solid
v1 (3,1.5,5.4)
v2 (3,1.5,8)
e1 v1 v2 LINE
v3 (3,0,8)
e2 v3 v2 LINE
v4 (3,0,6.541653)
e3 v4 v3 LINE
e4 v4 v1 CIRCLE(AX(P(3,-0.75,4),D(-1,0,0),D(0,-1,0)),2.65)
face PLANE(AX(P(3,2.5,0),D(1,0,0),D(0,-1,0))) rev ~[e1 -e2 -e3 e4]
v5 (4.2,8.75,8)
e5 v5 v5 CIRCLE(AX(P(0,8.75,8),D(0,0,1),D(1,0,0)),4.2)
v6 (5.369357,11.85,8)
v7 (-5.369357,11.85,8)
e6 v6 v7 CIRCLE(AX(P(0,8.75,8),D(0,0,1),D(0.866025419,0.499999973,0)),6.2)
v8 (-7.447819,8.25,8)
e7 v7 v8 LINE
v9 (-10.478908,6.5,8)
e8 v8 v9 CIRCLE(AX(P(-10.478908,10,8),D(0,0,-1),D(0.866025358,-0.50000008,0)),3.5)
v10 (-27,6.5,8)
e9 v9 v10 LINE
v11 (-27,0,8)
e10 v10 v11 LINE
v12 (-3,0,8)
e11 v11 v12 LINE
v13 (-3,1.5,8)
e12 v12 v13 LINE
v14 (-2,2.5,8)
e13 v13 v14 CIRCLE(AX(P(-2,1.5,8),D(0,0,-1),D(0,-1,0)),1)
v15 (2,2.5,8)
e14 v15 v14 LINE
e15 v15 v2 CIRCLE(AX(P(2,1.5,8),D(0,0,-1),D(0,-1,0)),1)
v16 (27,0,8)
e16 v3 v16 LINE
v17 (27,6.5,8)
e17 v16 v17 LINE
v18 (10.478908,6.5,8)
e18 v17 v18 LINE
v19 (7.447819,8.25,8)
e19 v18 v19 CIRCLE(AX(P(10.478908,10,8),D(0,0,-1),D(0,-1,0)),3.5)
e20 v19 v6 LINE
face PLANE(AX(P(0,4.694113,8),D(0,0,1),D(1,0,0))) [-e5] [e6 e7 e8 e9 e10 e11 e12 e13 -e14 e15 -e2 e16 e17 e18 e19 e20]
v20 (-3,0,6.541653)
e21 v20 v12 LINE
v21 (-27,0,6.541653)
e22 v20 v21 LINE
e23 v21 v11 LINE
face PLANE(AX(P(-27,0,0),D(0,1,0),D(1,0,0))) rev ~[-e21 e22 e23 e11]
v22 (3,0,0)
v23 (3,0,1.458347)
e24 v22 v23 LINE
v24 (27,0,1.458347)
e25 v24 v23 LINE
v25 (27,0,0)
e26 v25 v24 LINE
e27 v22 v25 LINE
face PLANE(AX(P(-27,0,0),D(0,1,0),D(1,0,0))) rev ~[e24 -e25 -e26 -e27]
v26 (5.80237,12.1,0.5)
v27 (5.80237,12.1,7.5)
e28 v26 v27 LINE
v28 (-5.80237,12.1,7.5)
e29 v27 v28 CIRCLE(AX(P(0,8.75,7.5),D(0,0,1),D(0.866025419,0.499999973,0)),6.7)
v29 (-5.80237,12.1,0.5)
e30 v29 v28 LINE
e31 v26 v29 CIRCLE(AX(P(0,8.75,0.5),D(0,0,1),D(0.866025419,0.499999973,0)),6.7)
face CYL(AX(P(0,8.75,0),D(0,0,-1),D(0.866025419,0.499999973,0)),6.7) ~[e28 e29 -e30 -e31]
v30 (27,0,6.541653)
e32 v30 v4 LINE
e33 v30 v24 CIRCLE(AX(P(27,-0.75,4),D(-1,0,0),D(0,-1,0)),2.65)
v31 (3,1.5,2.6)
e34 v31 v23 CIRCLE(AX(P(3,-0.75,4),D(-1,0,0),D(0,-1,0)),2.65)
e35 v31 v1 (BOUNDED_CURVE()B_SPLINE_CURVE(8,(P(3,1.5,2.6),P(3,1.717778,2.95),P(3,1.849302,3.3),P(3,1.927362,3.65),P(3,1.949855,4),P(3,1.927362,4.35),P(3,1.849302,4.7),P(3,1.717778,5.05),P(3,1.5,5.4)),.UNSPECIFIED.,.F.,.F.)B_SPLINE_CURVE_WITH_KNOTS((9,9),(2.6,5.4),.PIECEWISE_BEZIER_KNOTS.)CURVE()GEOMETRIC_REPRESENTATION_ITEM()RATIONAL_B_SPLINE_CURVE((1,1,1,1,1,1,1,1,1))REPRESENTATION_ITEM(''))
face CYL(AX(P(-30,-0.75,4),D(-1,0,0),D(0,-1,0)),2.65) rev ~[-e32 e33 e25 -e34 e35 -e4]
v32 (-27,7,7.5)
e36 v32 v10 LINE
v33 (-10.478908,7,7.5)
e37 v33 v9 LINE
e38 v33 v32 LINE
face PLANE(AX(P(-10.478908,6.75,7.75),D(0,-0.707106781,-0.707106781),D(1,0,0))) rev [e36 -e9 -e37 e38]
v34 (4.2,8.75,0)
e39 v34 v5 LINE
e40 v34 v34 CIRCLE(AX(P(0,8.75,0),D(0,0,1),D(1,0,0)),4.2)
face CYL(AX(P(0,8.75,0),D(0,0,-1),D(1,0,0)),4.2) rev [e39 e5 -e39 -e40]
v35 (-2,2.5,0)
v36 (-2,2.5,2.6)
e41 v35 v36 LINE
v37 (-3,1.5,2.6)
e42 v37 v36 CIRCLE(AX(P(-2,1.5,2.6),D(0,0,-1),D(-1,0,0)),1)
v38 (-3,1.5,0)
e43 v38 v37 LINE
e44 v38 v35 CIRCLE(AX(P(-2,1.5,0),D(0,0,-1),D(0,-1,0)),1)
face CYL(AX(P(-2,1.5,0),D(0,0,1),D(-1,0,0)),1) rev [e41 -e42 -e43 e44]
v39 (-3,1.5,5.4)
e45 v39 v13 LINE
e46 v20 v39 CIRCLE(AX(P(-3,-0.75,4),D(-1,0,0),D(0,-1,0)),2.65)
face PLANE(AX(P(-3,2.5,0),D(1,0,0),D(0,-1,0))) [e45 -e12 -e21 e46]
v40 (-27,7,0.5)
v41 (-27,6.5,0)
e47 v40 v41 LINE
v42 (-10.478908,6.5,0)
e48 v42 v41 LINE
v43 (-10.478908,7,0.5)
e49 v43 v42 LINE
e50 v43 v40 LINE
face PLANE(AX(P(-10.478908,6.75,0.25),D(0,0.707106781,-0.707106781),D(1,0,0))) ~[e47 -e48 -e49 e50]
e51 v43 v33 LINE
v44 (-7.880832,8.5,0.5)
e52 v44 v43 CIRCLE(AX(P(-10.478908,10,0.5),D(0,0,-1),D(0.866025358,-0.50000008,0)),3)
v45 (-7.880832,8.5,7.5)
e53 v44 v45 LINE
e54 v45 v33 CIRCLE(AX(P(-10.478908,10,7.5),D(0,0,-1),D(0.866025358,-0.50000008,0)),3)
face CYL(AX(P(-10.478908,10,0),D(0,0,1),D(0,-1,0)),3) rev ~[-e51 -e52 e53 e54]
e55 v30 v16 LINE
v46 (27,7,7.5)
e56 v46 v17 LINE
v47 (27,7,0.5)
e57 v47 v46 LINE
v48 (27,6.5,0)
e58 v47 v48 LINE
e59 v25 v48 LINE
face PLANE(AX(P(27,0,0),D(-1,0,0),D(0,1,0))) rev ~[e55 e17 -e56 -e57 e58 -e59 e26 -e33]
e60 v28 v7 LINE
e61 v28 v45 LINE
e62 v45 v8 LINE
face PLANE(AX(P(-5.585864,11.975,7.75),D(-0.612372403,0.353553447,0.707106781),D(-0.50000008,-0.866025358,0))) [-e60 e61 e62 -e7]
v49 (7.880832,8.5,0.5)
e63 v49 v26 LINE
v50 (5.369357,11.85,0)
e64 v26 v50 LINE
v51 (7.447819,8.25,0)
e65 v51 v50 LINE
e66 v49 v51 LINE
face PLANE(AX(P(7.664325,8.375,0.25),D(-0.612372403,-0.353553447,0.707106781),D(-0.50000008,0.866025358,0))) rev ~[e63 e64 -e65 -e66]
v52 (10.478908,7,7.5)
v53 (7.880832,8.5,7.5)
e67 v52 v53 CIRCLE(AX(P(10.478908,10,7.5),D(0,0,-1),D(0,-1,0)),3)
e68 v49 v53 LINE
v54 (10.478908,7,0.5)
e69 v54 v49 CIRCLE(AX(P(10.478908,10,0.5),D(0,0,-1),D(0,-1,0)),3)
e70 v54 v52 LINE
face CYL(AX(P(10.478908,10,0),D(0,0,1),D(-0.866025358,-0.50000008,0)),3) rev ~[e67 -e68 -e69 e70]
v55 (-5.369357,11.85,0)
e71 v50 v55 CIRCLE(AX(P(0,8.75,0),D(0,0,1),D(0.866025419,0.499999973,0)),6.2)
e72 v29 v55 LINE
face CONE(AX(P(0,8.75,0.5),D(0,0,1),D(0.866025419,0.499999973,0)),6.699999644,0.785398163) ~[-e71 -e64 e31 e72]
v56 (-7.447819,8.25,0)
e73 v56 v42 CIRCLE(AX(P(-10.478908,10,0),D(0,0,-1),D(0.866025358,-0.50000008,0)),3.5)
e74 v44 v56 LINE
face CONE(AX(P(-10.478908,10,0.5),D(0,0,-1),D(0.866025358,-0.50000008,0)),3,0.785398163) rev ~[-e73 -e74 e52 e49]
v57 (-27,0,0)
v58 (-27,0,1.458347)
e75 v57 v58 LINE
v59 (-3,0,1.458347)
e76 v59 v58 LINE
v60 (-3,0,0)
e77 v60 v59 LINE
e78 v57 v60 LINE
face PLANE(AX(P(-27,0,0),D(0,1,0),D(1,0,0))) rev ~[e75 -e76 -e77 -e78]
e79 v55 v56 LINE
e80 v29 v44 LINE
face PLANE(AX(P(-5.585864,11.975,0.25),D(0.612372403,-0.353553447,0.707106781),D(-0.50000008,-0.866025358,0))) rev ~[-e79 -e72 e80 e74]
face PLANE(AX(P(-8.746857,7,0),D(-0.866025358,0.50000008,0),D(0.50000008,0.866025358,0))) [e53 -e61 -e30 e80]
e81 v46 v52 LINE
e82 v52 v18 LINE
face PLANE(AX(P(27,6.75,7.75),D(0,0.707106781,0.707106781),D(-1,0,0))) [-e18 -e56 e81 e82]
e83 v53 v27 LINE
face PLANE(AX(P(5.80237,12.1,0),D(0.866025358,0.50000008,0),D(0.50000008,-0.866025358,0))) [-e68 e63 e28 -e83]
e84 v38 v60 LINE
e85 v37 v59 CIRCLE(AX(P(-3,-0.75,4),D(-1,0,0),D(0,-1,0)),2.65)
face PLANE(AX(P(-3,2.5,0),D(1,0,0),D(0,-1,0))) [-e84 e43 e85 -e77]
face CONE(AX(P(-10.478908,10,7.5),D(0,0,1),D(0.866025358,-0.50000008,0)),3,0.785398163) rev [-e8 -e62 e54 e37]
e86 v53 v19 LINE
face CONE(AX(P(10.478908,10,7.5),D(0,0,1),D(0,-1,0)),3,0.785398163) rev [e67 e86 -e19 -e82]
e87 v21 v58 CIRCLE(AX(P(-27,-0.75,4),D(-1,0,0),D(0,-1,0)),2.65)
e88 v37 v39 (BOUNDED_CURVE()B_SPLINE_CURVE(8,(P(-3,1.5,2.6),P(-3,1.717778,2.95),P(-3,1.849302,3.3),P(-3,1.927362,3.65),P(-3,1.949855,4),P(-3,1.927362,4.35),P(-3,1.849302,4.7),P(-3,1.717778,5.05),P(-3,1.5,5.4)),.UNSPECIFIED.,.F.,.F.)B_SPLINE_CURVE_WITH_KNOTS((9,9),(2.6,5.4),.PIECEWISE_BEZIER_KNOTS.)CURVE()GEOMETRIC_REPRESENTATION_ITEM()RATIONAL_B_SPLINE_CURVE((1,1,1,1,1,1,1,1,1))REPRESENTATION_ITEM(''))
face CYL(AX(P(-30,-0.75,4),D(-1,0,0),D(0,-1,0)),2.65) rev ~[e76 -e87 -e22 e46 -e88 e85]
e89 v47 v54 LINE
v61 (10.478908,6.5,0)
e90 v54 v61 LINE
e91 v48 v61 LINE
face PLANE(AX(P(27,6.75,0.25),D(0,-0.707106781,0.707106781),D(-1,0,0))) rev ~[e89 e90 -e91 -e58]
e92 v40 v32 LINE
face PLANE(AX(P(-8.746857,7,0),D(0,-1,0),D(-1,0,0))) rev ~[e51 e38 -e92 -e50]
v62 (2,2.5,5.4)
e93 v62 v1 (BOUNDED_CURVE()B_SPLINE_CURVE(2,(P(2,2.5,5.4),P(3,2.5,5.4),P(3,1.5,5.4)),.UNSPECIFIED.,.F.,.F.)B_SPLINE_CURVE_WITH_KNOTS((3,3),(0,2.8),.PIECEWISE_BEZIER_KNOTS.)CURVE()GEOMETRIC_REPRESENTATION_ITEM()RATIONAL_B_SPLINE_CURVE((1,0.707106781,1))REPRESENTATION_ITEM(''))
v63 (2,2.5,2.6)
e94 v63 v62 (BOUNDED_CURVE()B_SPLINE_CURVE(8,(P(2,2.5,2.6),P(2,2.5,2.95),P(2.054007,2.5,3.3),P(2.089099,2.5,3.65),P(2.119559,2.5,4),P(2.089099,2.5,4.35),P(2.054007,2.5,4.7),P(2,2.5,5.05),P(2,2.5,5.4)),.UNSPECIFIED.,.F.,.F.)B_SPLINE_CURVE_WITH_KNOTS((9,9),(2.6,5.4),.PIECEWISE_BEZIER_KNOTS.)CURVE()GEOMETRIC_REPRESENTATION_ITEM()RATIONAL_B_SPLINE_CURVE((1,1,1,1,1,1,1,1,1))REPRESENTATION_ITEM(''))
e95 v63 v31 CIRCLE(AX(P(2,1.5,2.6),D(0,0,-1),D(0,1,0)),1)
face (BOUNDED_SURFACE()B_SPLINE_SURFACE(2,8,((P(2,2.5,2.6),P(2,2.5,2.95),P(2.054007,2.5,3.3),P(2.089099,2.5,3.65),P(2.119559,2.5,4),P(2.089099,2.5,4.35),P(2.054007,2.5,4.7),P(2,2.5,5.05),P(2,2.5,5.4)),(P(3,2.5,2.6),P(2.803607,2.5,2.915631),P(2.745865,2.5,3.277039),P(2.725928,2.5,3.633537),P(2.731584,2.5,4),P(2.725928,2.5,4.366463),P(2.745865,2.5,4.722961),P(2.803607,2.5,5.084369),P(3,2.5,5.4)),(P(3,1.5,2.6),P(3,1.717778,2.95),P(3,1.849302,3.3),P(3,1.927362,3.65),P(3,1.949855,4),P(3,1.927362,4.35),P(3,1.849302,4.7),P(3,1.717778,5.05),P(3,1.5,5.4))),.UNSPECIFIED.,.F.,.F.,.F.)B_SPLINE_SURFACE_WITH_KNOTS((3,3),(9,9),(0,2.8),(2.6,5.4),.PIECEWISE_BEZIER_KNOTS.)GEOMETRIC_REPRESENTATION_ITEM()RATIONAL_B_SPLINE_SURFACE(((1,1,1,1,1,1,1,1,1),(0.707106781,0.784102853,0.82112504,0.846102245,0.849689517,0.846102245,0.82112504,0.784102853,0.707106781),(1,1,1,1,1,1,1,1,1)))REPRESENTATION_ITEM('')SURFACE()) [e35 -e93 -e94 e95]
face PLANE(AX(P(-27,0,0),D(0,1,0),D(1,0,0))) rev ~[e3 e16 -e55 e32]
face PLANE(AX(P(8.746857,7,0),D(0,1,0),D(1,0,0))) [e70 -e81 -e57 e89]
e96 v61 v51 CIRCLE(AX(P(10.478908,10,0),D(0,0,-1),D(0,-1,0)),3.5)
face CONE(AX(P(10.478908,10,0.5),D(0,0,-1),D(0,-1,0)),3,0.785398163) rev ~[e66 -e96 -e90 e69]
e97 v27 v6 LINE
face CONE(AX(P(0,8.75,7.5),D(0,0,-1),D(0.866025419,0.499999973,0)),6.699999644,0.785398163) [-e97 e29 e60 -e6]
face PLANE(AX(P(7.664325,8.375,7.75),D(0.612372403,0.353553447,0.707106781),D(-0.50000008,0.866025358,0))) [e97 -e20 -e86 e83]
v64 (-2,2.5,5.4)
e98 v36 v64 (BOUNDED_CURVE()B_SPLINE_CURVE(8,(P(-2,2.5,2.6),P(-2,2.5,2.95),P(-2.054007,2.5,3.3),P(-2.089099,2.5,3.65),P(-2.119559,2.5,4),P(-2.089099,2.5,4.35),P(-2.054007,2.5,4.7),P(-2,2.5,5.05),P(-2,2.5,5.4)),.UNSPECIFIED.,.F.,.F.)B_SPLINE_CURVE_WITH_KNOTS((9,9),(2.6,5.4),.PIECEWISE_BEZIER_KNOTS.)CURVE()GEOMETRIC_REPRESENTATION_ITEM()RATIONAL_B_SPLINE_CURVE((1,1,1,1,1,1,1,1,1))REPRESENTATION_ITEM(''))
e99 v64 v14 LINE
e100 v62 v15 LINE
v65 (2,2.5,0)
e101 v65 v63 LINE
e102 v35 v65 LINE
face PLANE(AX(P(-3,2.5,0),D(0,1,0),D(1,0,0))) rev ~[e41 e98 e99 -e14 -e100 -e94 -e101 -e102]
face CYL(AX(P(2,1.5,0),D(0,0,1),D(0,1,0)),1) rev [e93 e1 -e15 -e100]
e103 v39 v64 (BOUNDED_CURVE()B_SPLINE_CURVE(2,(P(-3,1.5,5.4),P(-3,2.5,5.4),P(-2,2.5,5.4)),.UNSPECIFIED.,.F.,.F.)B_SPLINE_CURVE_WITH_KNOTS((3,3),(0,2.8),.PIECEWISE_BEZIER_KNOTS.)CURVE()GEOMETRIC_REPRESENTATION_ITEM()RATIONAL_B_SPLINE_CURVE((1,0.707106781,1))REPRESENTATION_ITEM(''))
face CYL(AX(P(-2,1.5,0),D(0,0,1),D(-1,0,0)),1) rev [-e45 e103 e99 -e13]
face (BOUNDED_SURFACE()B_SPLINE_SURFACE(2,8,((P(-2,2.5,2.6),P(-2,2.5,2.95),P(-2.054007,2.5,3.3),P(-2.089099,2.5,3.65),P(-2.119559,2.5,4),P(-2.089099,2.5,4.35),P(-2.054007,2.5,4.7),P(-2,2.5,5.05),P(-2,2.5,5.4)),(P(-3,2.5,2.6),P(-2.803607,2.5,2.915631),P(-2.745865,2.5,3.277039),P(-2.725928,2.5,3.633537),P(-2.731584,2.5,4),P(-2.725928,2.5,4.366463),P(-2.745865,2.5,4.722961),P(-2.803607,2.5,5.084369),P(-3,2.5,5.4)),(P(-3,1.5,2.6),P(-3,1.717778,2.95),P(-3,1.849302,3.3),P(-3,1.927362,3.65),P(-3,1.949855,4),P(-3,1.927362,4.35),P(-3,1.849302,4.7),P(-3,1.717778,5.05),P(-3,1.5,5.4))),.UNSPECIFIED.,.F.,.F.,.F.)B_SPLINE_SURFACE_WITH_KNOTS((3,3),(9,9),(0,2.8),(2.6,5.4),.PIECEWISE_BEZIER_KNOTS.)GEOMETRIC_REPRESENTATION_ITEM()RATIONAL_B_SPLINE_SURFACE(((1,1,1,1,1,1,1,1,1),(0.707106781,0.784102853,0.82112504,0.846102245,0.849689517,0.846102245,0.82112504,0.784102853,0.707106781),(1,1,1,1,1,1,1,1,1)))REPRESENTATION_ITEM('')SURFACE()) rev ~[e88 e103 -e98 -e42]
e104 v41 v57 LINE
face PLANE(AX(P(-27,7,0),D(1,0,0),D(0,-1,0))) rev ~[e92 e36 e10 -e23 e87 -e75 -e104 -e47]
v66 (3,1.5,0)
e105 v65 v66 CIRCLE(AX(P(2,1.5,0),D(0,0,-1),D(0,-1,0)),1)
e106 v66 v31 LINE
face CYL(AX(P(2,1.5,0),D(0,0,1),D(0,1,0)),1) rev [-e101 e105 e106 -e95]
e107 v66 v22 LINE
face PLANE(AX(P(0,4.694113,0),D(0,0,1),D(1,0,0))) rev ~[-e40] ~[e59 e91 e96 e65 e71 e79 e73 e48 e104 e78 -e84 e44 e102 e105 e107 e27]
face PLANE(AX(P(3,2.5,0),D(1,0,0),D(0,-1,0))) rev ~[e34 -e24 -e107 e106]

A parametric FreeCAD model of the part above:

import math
import FreeCAD as App
import Part
import Sketcher
from FreeCAD import Vector
Q = App.Units.Quantity


def edges_at(feature, points):
    """Names of the edges that pass closest to the given points."""
    edges = feature.Shape.Edges
    near = lambda p: min(range(len(edges)), key=lambda i: edges[i].distToShape(Part.Vertex(*p))[0])
    return sorted({f"Edge{near(p) + 1}" for p in points})


def add_polygon(sketch, points):
    """Adds a closed chain of lines whose ends are joined by coincident constraints."""
    first, n = sketch.GeometryCount, len(points)
    for a, b in zip(points, points[1:] + points[:1]):
        sketch.addGeometry(Part.LineSegment(App.Vector(*a, 0), App.Vector(*b, 0)), False)
    for i in range(n):
        sketch.addConstraint(Sketcher.Constraint("Coincident", first + i, 2, first + (i + 1) % n, 1))

doc = App.newDocument("Part")
body = doc.addObject("PartDesign::Body", "Body")

sketch1 = doc.addObject("Sketcher::SketchObject", "Sketch")
body.addObject(sketch1)
sketch1.AttachmentSupport = (doc.XY_Plane, [""])
sketch1.MapMode = "FlatFace"
sketch1.addGeometry([
    Part.LineSegment(Vector(-8.7, 7, 0), Vector(-27, 7, 0)),
    Part.LineSegment(Vector(-27, 7, 0), Vector(-27, 0, 0)),
    Part.LineSegment(Vector(-27, 0, 0), Vector(27, 0, 0)),
    Part.LineSegment(Vector(27, 0, 0), Vector(27, 7, 0)),
    Part.LineSegment(Vector(27, 7, 0), Vector(8.7, 7, 0)),
    Part.LineSegment(Vector(8.7, 7, 0), Vector(5.8, 12.1, 0)),
    Part.ArcOfCircle(Part.Circle(Vector(0, 8.8, 0), Vector(0, 0, 1), 6.7), math.radians(30), math.radians(150)),
    Part.LineSegment(Vector(-5.8, 12.1, 0), Vector(-8.7, 7, 0)),
    Part.Circle(Vector(0, 8.8, 0), Vector(0, 0, 1), 4.2),
], False)
sketch1.addConstraint([
    Sketcher.Constraint("Coincident", 0, 2, 1, 1),
    Sketcher.Constraint("Coincident", 1, 2, 2, 1),
    Sketcher.Constraint("Coincident", 2, 2, 3, 1),
    Sketcher.Constraint("Coincident", 3, 2, 4, 1),
    Sketcher.Constraint("Coincident", 4, 2, 5, 1),
    Sketcher.Constraint("Tangent", 5, 2, 6, 1),
    Sketcher.Constraint("Tangent", 6, 2, 7, 1),
    Sketcher.Constraint("Coincident", 7, 2, 0, 1),
    Sketcher.Constraint("Horizontal", 0),
    Sketcher.Constraint("Vertical", 1),
    Sketcher.Constraint("Horizontal", 2),
    Sketcher.Constraint("Vertical", 3),
    Sketcher.Constraint("Horizontal", 4),
    Sketcher.Constraint("Coincident", 8, 3, 6, 3),
    Sketcher.Constraint("Symmetric", 1, 2, 2, 2, -1, 1),
    Sketcher.Constraint("Symmetric", 5, 2, 6, 2, -2),
    Sketcher.Constraint("Horizontal", 0, 2, 3, 2),
    Sketcher.Constraint("Diameter", 8, Q("8.4 mm")),
    Sketcher.Constraint("Radius", 6, Q("6.7 mm")),
    Sketcher.Constraint("DistanceX", 2, 1, 2, 2, Q("54 mm")),
    Sketcher.Constraint("DistanceY", 1, 2, 1, 1, Q("7 mm")),
    Sketcher.Constraint("Angle", 5, Q("120.000005 deg")),
    Sketcher.Constraint("DistanceY", -1, 1, 5, 2, Q("12.1 mm")),
])
pad1 = doc.addObject("PartDesign::Pad", "Pad")
body.addObject(pad1)
pad1.Profile = sketch1
pad1.Length = 8

sketch2 = doc.addObject("Sketcher::SketchObject", "Sketch001")
body.addObject(sketch2)
sketch2.AttachmentSupport = (doc.XY_Plane, [""])
sketch2.MapMode = "FlatFace"
add_polygon(sketch2, [(-3, 0), (-3, 2.5), (3, 2.5), (3, 0)])
sketch2.addConstraint([
    Sketcher.Constraint("Vertical", 0),
    Sketcher.Constraint("Horizontal", 1),
    Sketcher.Constraint("Vertical", 2),
    Sketcher.Constraint("Horizontal", 3),
    Sketcher.Constraint("Symmetric", 2, 2, 3, 2, -1, 1),
    Sketcher.Constraint("DistanceX", 1, 1, 1, 2, Q("6 mm")),
    Sketcher.Constraint("DistanceY", 0, 1, 0, 2, Q("2.5 mm")),
])
pocket1 = doc.addObject("PartDesign::Pocket", "Pocket")
body.addObject(pocket1)
pocket1.Profile = sketch2
pocket1.Type = "ThroughAll"
pocket1.Reversed = True

sketch3 = doc.addObject("Sketcher::SketchObject", "Sketch002")
body.addObject(sketch3)
sketch3.AttachmentSupport = (doc.YZ_Plane, [""])
sketch3.MapMode = "FlatFace"
sketch3.AttachmentOffset = App.Placement(Vector(0, 0, -30), App.Rotation())
sketch3.addGeometry(Part.Circle(Vector(-0.8, 4, 0), Vector(0, 0, 1), 2.6), False)
sketch3.addConstraint([
    Sketcher.Constraint("Diameter", 0, Q("5.3 mm")),
    Sketcher.Constraint("DistanceY", -1, 1, 0, 3, Q("4 mm")),
    Sketcher.Constraint("DistanceX", 0, 3, -1, 1, Q("0.75 mm")),
])
pocket2 = doc.addObject("PartDesign::Pocket", "Pocket001")
body.addObject(pocket2)
pocket2.Profile = sketch3
pocket2.Type = "ThroughAll"
pocket2.Reversed = True
doc.recompute()

fillet = doc.addObject("PartDesign::Fillet", "Fillet")
body.addObject(fillet)
fillet.Base = (pocket2, edges_at(pocket2, [(-8.747, 7, 4), (8.747, 7, 4)]))
fillet.Radius = 3
doc.recompute()

chamfer = doc.addObject("PartDesign::Chamfer", "Chamfer")
body.addObject(chamfer)
chamfer.Base = (fillet, edges_at(fillet, [(-18.739, 7, 8), (-18.739, 7, 0)]))
chamfer.Size = 0.5
doc.recompute()

fillet2 = doc.addObject("PartDesign::Fillet", "Fillet001")
body.addObject(fillet2)
fillet2.Base = (chamfer, edges_at(chamfer, [(-3, 2.5, 4), (3, 2.5, 4)]))
fillet2.Radius = 1

doc.recompute()
